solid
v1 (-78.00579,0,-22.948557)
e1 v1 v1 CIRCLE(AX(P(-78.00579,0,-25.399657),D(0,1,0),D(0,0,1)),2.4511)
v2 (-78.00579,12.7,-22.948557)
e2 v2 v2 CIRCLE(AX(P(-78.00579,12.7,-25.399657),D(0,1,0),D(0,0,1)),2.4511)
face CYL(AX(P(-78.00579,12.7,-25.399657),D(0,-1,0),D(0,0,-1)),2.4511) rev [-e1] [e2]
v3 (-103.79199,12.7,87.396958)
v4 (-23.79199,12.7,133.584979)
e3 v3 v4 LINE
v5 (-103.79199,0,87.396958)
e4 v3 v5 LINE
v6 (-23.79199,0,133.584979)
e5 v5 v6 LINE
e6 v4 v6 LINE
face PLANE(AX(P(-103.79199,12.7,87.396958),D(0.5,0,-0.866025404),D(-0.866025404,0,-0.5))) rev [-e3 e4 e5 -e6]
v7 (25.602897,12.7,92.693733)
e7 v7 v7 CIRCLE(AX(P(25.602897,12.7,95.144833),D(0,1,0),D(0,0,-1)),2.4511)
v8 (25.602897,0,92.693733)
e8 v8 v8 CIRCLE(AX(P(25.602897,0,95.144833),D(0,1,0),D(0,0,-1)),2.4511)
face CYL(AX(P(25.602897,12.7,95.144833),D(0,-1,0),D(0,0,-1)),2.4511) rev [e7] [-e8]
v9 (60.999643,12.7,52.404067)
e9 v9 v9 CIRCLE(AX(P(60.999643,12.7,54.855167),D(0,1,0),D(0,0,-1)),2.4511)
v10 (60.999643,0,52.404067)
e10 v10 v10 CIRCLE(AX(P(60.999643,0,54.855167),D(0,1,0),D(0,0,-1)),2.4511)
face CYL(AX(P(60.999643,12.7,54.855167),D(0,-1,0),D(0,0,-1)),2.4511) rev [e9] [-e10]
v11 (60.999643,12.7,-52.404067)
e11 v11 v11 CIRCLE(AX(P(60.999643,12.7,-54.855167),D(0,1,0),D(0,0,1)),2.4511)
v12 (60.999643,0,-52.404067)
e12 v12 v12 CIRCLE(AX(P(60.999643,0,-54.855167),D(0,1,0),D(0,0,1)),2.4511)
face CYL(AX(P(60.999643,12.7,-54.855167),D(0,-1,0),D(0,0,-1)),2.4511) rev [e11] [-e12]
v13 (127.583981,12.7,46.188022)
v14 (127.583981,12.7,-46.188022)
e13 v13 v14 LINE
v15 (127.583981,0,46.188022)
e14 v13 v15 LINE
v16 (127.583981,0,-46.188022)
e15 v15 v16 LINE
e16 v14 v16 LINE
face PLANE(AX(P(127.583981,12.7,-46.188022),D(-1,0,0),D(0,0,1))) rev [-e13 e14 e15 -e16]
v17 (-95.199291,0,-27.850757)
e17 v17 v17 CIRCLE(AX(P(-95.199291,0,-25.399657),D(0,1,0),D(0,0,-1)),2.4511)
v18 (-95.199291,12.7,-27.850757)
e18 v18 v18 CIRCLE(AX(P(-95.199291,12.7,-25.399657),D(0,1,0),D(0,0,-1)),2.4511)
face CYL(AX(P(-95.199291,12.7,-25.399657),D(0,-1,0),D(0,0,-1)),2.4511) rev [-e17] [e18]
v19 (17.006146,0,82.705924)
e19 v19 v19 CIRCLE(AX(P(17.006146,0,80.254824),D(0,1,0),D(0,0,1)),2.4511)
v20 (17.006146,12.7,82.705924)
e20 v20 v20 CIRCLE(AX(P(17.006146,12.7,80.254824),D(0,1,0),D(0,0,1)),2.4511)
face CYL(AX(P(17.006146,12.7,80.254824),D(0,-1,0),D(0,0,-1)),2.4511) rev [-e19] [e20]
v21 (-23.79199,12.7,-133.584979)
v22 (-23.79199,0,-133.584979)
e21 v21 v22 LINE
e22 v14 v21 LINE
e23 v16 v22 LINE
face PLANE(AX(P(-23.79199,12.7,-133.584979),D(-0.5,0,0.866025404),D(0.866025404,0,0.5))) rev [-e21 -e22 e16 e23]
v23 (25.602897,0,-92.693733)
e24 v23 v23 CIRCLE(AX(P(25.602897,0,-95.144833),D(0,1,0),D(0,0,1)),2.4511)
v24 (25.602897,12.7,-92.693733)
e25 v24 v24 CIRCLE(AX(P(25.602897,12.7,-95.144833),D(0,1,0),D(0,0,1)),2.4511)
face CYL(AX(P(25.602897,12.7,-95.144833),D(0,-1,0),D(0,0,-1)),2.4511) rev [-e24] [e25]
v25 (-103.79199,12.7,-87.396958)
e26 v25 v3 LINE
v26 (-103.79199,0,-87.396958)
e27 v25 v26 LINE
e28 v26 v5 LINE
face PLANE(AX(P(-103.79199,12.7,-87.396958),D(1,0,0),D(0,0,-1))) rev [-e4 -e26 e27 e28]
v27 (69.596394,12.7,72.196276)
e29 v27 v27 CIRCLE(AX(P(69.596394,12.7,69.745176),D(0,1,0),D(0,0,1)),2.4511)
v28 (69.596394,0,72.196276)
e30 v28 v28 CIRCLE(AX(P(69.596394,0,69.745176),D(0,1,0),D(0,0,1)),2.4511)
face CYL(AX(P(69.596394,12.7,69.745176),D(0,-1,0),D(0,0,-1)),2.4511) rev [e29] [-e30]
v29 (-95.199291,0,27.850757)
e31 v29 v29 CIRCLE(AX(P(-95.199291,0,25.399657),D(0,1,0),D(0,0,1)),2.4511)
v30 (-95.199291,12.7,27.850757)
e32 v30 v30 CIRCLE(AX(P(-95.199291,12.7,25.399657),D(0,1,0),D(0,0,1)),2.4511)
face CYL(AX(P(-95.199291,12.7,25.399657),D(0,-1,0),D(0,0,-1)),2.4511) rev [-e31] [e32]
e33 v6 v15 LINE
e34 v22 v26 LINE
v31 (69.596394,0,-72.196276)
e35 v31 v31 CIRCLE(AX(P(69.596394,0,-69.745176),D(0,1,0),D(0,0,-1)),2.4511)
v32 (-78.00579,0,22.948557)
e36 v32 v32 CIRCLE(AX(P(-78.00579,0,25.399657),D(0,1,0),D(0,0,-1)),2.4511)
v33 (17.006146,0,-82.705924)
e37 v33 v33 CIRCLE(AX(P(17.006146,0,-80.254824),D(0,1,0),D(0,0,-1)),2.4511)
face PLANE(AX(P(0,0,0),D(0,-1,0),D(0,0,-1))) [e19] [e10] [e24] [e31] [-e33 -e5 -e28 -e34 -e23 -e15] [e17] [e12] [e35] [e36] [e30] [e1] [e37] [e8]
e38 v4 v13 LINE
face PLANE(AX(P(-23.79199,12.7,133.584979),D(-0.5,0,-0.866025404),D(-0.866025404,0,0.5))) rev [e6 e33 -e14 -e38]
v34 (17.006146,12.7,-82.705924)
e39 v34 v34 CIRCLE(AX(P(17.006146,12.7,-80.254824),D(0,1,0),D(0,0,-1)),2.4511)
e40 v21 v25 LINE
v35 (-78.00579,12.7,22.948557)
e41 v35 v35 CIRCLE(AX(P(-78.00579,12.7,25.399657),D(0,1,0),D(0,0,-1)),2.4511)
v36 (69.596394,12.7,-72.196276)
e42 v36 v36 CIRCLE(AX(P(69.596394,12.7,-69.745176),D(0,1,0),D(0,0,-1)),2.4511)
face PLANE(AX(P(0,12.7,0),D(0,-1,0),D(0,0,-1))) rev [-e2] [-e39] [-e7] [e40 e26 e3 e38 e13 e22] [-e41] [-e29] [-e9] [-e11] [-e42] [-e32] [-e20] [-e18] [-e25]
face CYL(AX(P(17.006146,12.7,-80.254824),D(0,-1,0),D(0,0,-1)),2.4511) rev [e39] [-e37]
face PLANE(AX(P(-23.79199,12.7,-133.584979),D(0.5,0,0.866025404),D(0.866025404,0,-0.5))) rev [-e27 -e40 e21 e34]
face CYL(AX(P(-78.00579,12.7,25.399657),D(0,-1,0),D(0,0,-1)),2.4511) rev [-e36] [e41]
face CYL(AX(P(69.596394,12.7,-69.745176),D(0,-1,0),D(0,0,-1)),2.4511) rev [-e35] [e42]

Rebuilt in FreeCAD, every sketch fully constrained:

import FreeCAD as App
import Part
import Sketcher
Q = App.Units.Quantity

doc = App.newDocument("Part")
body = doc.addObject("PartDesign::Body", "Body")

# Sketch on XZ plane
sketch1 = body.newObject("Sketcher::SketchObject", "Sketch")
sketch1.AttachmentSupport = (doc.getObject("XZ_Plane"), [""])
sketch1.MapMode = "FlatFace"
sketch1.addGeometry(Part.LineSegment(App.Vector(127.6, 46.2, 0), App.Vector(127.6, -46.2, 0)), False)
sketch1.addGeometry(Part.LineSegment(App.Vector(127.6, -46.2, 0), App.Vector(-23.8, -133.6, 0)), False)
sketch1.addGeometry(Part.LineSegment(App.Vector(-23.8, -133.6, 0), App.Vector(-103.8, -87.4, 0)), False)
sketch1.addGeometry(Part.LineSegment(App.Vector(-103.8, -87.4, 0), App.Vector(-103.8, 87.4, 0)), False)
sketch1.addGeometry(Part.LineSegment(App.Vector(-103.8, 87.4, 0), App.Vector(-23.8, 133.6, 0)), False)
sketch1.addGeometry(Part.LineSegment(App.Vector(-23.8, 133.6, 0), App.Vector(127.6, 46.2, 0)), False)
sketch1.addGeometry(Part.Circle(App.Vector(69.6, 69.7, 0), App.Vector(0, 0, 1), 2.5), False)
sketch1.addGeometry(Part.Circle(App.Vector(61, 54.9, 0), App.Vector(0, 0, 1), 2.5), False)
sketch1.addGeometry(Part.Circle(App.Vector(25.6, 95.1, 0), App.Vector(0, 0, 1), 2.5), False)
sketch1.addGeometry(Part.Circle(App.Vector(17, 80.3, 0), App.Vector(0, 0, 1), 2.5), False)
sketch1.addGeometry(Part.Circle(App.Vector(-78, 25.4, 0), App.Vector(0, 0, 1), 2.5), False)
sketch1.addGeometry(Part.Circle(App.Vector(-95.2, 25.4, 0), App.Vector(0, 0, 1), 2.5), False)
sketch1.addGeometry(Part.Circle(App.Vector(61, -54.9, 0), App.Vector(0, 0, 1), 2.5), False)
sketch1.addGeometry(Part.Circle(App.Vector(69.6, -69.7, 0), App.Vector(0, 0, 1), 2.5), False)
sketch1.addGeometry(Part.Circle(App.Vector(17, -80.3, 0), App.Vector(0, 0, 1), 2.5), False)
sketch1.addGeometry(Part.Circle(App.Vector(25.6, -95.1, 0), App.Vector(0, 0, 1), 2.5), False)
sketch1.addGeometry(Part.Circle(App.Vector(-78, -25.4, 0), App.Vector(0, 0, 1), 2.5), False)
sketch1.addGeometry(Part.Circle(App.Vector(-95.2, -25.4, 0), App.Vector(0, 0, 1), 2.5), False)
sketch1.addConstraint(Sketcher.Constraint("Coincident", 0, 2, 1, 1))
sketch1.addConstraint(Sketcher.Constraint("Coincident", 1, 2, 2, 1))
sketch1.addConstraint(Sketcher.Constraint("Coincident", 2, 2, 3, 1))
sketch1.addConstraint(Sketcher.Constraint("Coincident", 3, 2, 4, 1))
sketch1.addConstraint(Sketcher.Constraint("Coincident", 4, 2, 5, 1))
sketch1.addConstraint(Sketcher.Constraint("Coincident", 5, 2, 0, 1))
sketch1.addConstraint(Sketcher.Constraint("Vertical", 0))
sketch1.addConstraint(Sketcher.Constraint("Vertical", 3))
sketch1.addConstraint(Sketcher.Constraint("Equal", 6, 7))
sketch1.addConstraint(Sketcher.Constraint("Equal", 7, 8))
sketch1.addConstraint(Sketcher.Constraint("Equal", 8, 9))
sketch1.addConstraint(Sketcher.Constraint("Equal", 9, 10))
sketch1.addConstraint(Sketcher.Constraint("Equal", 10, 11))
sketch1.addConstraint(Sketcher.Constraint("Equal", 11, 12))
sketch1.addConstraint(Sketcher.Constraint("Equal", 12, 13))
sketch1.addConstraint(Sketcher.Constraint("Equal", 13, 14))
sketch1.addConstraint(Sketcher.Constraint("Equal", 14, 15))
sketch1.addConstraint(Sketcher.Constraint("Equal", 15, 16))
sketch1.addConstraint(Sketcher.Constraint("Equal", 16, 17))
sketch1.addConstraint(Sketcher.Constraint("Symmetric", 7, 3, 12, 3, -1))
sketch1.addConstraint(Sketcher.Constraint("Symmetric", 6, 3, 13, 3, -1))
sketch1.addConstraint(Sketcher.Constraint("Symmetric", 9, 3, 14, 3, -1))
sketch1.addConstraint(Sketcher.Constraint("Symmetric", 8, 3, 15, 3, -1))
sketch1.addConstraint(Sketcher.Constraint("Symmetric", 10, 3, 16, 3, -1))
sketch1.addConstraint(Sketcher.Constraint("Symmetric", 11, 3, 17, 3, -1))
sketch1.addConstraint(Sketcher.Constraint("Symmetric", 1, 2, 4, 2, -1))
sketch1.addConstraint(Sketcher.Constraint("Parallel", 1, 4))
sketch1.addConstraint(Sketcher.Constraint("Parallel", 2, 5))
sketch1.addConstraint(Sketcher.Constraint("Horizontal", 10, 3, 11, 3))
sketch1.addConstraint(Sketcher.Constraint("Equal", 2, 4))
sketch1.addConstraint(Sketcher.Constraint("Diameter", 6, Q("0.193 in")))
sketch1.addConstraint(Sketcher.Constraint("Angle", 1, Q("-150 deg")))
sketch1.addConstraint(Sketcher.Constraint("DistanceX", 11, 3, 10, 3, 17.193501))
sketch1.addConstraint(Sketcher.Constraint("DistanceY", 12, 3, 8, 3, 150.0))
sketch1.addConstraint(Sketcher.Constraint("DistanceY", 13, 3, 9, 3, 150.0))
sketch1.addConstraint(Sketcher.Constraint("DistanceX", 16, 3, 1, 2, 54.213799))
sketch1.addConstraint(Sketcher.Constraint("DistanceX", 2, 2, 17, 3, 8.592699))
sketch1.addConstraint(Sketcher.Constraint("DistanceY", 2, 2, 17, 3, 61.9973))
sketch1.addConstraint(Sketcher.Constraint("DistanceY", 0, 2, 0, 1, 92.376043))
sketch1.addConstraint(Sketcher.Constraint("DistanceY", 3, 1, 3, 2, 174.793915))
sketch1.addConstraint(Sketcher.Constraint("DistanceX", 10, 3, -1, 1, 78.00579))
sketch1.addConstraint(Sketcher.Constraint("DistanceX", 7, 3, 6, 3, 8.596751))
sketch1.addConstraint(Sketcher.Constraint("DistanceY", 7, 3, 6, 3, 14.890009))
sketch1.addConstraint(Sketcher.Constraint("DistanceX", 9, 3, 8, 3, 8.596751))
sketch1.addConstraint(Sketcher.Constraint("DistanceY", 6, 3, 9, 3, 10.509648))
sketch1.addConstraint(Sketcher.Constraint("DistanceX", 11, 3, 8, 3, 120.802188))
sketch1.addConstraint(Sketcher.Constraint("DistanceX", -1, 1, 6, 3, 69.596394))
pad1 = body.newObject("PartDesign::Pad", "Pad")
pad1.Profile = sketch1
pad1.Length = Q("0.5 in")
pad1.Reversed = True

doc.recompute()
